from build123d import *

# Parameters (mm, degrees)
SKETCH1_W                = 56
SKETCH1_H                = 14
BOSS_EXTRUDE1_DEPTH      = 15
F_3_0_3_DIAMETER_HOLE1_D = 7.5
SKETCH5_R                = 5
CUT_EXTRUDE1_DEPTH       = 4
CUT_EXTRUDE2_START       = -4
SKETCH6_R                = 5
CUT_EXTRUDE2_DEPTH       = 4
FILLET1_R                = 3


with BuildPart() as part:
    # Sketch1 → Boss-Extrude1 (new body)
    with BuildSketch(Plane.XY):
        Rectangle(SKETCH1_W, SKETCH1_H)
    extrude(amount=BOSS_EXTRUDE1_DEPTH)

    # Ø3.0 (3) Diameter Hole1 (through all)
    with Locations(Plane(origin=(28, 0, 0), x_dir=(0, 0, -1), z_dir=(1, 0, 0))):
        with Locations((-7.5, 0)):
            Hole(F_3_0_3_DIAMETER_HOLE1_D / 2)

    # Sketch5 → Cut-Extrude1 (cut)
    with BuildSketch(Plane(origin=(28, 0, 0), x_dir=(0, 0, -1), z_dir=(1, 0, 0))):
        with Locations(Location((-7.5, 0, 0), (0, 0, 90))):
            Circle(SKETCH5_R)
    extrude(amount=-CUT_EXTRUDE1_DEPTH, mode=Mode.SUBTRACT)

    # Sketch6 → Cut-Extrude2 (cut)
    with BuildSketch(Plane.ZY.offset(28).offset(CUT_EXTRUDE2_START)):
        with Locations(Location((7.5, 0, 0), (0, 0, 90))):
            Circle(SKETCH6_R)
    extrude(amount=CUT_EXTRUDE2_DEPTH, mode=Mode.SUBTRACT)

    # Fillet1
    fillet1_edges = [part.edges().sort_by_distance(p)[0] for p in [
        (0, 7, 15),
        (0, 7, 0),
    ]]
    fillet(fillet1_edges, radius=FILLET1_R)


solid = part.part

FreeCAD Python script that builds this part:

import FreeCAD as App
import Part
import Sketcher

V = App.Vector


def edges_at(feature, points):
    """Names of the edges that pass closest to the given points."""
    edges = feature.Shape.Edges
    near = lambda p: min(range(len(edges)), key=lambda i: edges[i].distToShape(Part.Vertex(*p))[0])
    return sorted({f"Edge{near(p) + 1}" for p in points})


def add_polygon(sketch, points):
    """Adds a closed chain of lines whose ends are joined by coincident constraints."""
    first, n = sketch.GeometryCount, len(points)
    for a, b in zip(points, points[1:] + points[:1]):
        sketch.addGeometry(Part.LineSegment(App.Vector(*a, 0), App.Vector(*b, 0)), False)
    for i in range(n):
        sketch.addConstraint(Sketcher.Constraint("Coincident", first + i, 2, first + (i + 1) % n, 1))

doc = App.newDocument("Part")
body = doc.addObject("PartDesign::Body", "Body")

sketch1 = body.newObject("Sketcher::SketchObject", "Sketch")
sketch1.AttachmentSupport = (doc.getObject("XY_Plane"), [""])
sketch1.MapMode = "FlatFace"
add_polygon(sketch1, [(-28, 7), (-28, -7), (28, -7), (28, 7)])
sketch1.addConstraint(Sketcher.Constraint("Vertical", 0))
sketch1.addConstraint(Sketcher.Constraint("Horizontal", 1))
sketch1.addConstraint(Sketcher.Constraint("Vertical", 2))
sketch1.addConstraint(Sketcher.Constraint("Horizontal", 3))
sketch1.addConstraint(Sketcher.Constraint("Symmetric", 0, 2, 2, 2, -1, 1))
sketch1.addConstraint(Sketcher.Constraint("DistanceX", 1, 1, 1, 2, 56.0))
sketch1.addConstraint(Sketcher.Constraint("DistanceY", 0, 2, 0, 1, 14.0))
pad1 = body.newObject("PartDesign::Pad", "Pad")
pad1.Profile = sketch1
pad1.Length = 15

sketch2 = body.newObject("Sketcher::SketchObject", "Sketch001")
sketch2.AttachmentSupport = (doc.getObject("YZ_Plane"), [""])
sketch2.MapMode = "FlatFace"
sketch2.AttachmentOffset = App.Placement(V(0, 0, 28), App.Rotation())
sketch2.addGeometry(Part.Circle(V(0, 7.5, 0), V(0, 0, 1), 3.8), False)
sketch2.addConstraint(Sketcher.Constraint("PointOnObject", 0, 3, -2))
sketch2.addConstraint(Sketcher.Constraint("Diameter", 0, 7.5))
sketch2.addConstraint(Sketcher.Constraint("DistanceY", -1, 1, 0, 3, 7.5))
doc.recompute()
hole = body.newObject("PartDesign::Hole", "Hole")
hole.Profile = sketch2
hole.ThreadType = "None"
hole.Diameter = 7.5
hole.DepthType = "ThroughAll"

sketch3 = body.newObject("Sketcher::SketchObject", "Sketch002")
sketch3.AttachmentSupport = (doc.getObject("YZ_Plane"), [""])
sketch3.MapMode = "FlatFace"
sketch3.AttachmentOffset = App.Placement(V(0, 0, 28), App.Rotation())
sketch3.addGeometry(Part.Circle(V(0, 8, 0), V(0, 0, 1), 5), False)
sketch3.addConstraint(Sketcher.Constraint("PointOnObject", 0, 3, -2))
sketch3.addConstraint(Sketcher.Constraint("Diameter", 0, 10.0))
sketch3.addConstraint(Sketcher.Constraint("DistanceY", -1, 1, 0, 3, 7.5))
pocket1 = body.newObject("PartDesign::Pocket", "Pocket")
pocket1.Profile = sketch3
pocket1.Length = 4

sketch4 = body.newObject("Sketcher::SketchObject", "Sketch003")
sketch4.AttachmentSupport = (doc.getObject("YZ_Plane"), [""])
sketch4.MapMode = "FlatFace"
sketch4.AttachmentOffset = App.Placement(V(0, 0, -24), App.Rotation())
sketch4.addGeometry(Part.Circle(V(0, 8, 0), V(0, 0, 1), 5), False)
sketch4.addConstraint(Sketcher.Constraint("PointOnObject", 0, 3, -2))
sketch4.addConstraint(Sketcher.Constraint("Diameter", 0, 10.0))
sketch4.addConstraint(Sketcher.Constraint("DistanceY", -1, 1, 0, 3, 7.5))
pocket2 = body.newObject("PartDesign::Pocket", "Pocket001")
pocket2.Profile = sketch4
pocket2.Length = 4
doc.recompute()

fillet = body.newObject("PartDesign::Fillet", "Fillet")
fillet.Base = (pocket2, edges_at(pocket2, [(0, 7, 15), (0, 7, 0)]))
fillet.Radius = 3

doc.recompute()
